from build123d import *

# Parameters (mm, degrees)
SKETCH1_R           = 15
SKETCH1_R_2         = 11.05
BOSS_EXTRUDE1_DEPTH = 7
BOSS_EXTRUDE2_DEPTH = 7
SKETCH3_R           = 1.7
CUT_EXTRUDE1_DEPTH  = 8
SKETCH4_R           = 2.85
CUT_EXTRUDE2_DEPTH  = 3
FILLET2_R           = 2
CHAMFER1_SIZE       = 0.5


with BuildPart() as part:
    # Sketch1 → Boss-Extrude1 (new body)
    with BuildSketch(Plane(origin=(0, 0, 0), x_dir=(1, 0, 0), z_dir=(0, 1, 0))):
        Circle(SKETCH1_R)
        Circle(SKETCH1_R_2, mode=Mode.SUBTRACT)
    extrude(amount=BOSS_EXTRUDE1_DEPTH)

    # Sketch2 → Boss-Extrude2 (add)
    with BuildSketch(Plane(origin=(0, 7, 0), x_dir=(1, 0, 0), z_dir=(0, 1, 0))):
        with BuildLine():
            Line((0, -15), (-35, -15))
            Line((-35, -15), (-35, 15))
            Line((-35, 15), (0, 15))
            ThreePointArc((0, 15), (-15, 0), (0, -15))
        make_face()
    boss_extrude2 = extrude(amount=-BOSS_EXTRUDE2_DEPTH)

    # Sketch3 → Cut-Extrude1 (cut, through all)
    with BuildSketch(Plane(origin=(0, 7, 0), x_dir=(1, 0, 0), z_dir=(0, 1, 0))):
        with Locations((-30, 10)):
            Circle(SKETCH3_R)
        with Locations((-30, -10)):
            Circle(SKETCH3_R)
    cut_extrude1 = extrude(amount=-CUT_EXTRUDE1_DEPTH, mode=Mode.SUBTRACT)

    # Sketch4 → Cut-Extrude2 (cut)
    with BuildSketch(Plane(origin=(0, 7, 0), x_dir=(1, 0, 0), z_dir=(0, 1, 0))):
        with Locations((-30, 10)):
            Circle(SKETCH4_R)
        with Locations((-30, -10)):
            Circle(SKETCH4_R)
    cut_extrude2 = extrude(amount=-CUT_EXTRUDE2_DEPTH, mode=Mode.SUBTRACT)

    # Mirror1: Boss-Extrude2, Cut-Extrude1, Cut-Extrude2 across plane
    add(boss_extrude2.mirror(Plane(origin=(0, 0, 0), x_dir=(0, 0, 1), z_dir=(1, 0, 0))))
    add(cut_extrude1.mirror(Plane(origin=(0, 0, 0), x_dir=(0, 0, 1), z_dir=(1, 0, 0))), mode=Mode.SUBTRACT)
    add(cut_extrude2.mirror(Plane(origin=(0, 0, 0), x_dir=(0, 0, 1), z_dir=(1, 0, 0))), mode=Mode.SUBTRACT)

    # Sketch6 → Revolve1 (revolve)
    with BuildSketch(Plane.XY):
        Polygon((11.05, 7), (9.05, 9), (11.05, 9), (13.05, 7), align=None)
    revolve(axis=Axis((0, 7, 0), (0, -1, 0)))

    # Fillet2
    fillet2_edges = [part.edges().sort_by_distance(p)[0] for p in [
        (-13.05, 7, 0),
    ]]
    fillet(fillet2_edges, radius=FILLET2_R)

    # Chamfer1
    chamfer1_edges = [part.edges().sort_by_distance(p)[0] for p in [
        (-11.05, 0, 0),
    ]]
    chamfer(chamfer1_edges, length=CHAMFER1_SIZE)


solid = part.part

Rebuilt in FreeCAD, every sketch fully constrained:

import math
import FreeCAD as App
import Part
import Sketcher

V = App.Vector
Q = App.Units.Quantity


def edges_at(feature, points):
    """Names of the edges that pass closest to the given points."""
    edges = feature.Shape.Edges
    near = lambda p: min(range(len(edges)), key=lambda i: edges[i].distToShape(Part.Vertex(*p))[0])
    return sorted({f"Edge{near(p) + 1}" for p in points})


def add_polygon(sketch, points):
    """Adds a closed chain of lines whose ends are joined by coincident constraints."""
    first, n = sketch.GeometryCount, len(points)
    for a, b in zip(points, points[1:] + points[:1]):
        sketch.addGeometry(Part.LineSegment(App.Vector(*a, 0), App.Vector(*b, 0)), False)
    for i in range(n):
        sketch.addConstraint(Sketcher.Constraint("Coincident", first + i, 2, first + (i + 1) % n, 1))

doc = App.newDocument("Part")
body = doc.addObject("PartDesign::Body", "Body")

# Sketch on XZ plane
sketch1 = body.newObject("Sketcher::SketchObject", "Sketch")
sketch1.AttachmentSupport = (doc.getObject("XZ_Plane"), [""])
sketch1.MapMode = "FlatFace"
sketch1.addGeometry([
    Part.Circle(V(0, 0, 0), V(0, 0, 1), 15),
    Part.Circle(V(0, 0, 0), V(0, 0, 1), 11),
], False)
sketch1.addConstraint([
    Sketcher.Constraint("Coincident", 0, 3, -1, 1),
    Sketcher.Constraint("Coincident", 1, 3, -1, 1),
    Sketcher.Constraint("Diameter", 0, 30.0),
    Sketcher.Constraint("Diameter", 1, 22.1),
])
pad1 = body.newObject("PartDesign::Pad", "Pad")
pad1.Profile = sketch1
pad1.Length = 7
pad1.Reversed = True

# Sketch on XZ plane
sketch2 = body.newObject("Sketcher::SketchObject", "Sketch001")
sketch2.AttachmentSupport = (doc.getObject("XZ_Plane"), [""])
sketch2.MapMode = "FlatFace"
sketch2.AttachmentOffset = App.Placement(V(0, 0, -7), App.Rotation())
sketch2.addGeometry([
    Part.LineSegment(V(-35, 15, 0), V(0, 15, 0)),
    Part.ArcOfCircle(Part.Circle(V(0, 0, 0), V(0, 0, 1), 15), math.radians(90), math.radians(270)),
    Part.LineSegment(V(0, -15, 0), V(-35, -15, 0)),
    Part.LineSegment(V(-35, -15, 0), V(-35, 15, 0)),
], False)
sketch2.addConstraint([
    Sketcher.Constraint("Tangent", 0, 2, 1, 1),
    Sketcher.Constraint("Tangent", 1, 2, 2, 1),
    Sketcher.Constraint("Coincident", 2, 2, 3, 1),
    Sketcher.Constraint("Coincident", 3, 2, 0, 1),
    Sketcher.Constraint("Horizontal", 0),
    Sketcher.Constraint("Horizontal", 2),
    Sketcher.Constraint("Vertical", 3),
    Sketcher.Constraint("Coincident", 1, 3, -1, 1),
    Sketcher.Constraint("Radius", 1, 15.0),
    Sketcher.Constraint("DistanceX", 0, 1, 0, 2, 35.0),
])
pad2 = body.newObject("PartDesign::Pad", "Pad001")
pad2.Profile = sketch2
pad2.Length = 7

# Sketch on XZ plane
sketch3 = body.newObject("Sketcher::SketchObject", "Sketch002")
sketch3.AttachmentSupport = (doc.getObject("XZ_Plane"), [""])
sketch3.MapMode = "FlatFace"
sketch3.AttachmentOffset = App.Placement(V(0, 0, -7), App.Rotation())
sketch3.addGeometry([
    Part.Circle(V(-30, -10, 0), V(0, 0, 1), 1.7),
    Part.Circle(V(-30, 10, 0), V(0, 0, 1), 1.7),
], False)
sketch3.addConstraint([
    Sketcher.Constraint("Equal", 0, 1),
    Sketcher.Constraint("Symmetric", 0, 3, 1, 3, -1),
    Sketcher.Constraint("Diameter", 0, 3.4),
    Sketcher.Constraint("DistanceX", 0, 3, -1, 1, 30.0),
    Sketcher.Constraint("DistanceY", 0, 3, -1, 1, 10.0),
])
pocket1 = body.newObject("PartDesign::Pocket", "Pocket")
pocket1.Profile = sketch3
pocket1.Type = "ThroughAll"
pocket1.Reversed = True

# Sketch on XZ plane
sketch4 = body.newObject("Sketcher::SketchObject", "Sketch003")
sketch4.AttachmentSupport = (doc.getObject("XZ_Plane"), [""])
sketch4.MapMode = "FlatFace"
sketch4.AttachmentOffset = App.Placement(V(0, 0, -7), App.Rotation())
sketch4.addGeometry([
    Part.Circle(V(-30, -10, 0), V(0, 0, 1), 2.9),
    Part.Circle(V(-30, 10, 0), V(0, 0, 1), 2.9),
], False)
sketch4.addConstraint([
    Sketcher.Constraint("Equal", 0, 1),
    Sketcher.Constraint("Symmetric", 0, 3, 1, 3, -1),
    Sketcher.Constraint("Diameter", 0, 5.7),
    Sketcher.Constraint("DistanceX", 0, 3, -1, 1, 30.0),
    Sketcher.Constraint("DistanceY", 0, 3, -1, 1, 10.0),
])
pocket2 = body.newObject("PartDesign::Pocket", "Pocket001")
pocket2.Profile = sketch4
pocket2.Length = 3
pocket2.Reversed = True
doc.recompute()

mirrored = body.newObject("PartDesign::Mirrored", "Mirrored")
mirrored.Originals = [pad2, pocket1, pocket2]
mirrored.MirrorPlane = (doc.getObject("YZ_Plane"), [""])
body.Tip = mirrored

# Sketch on XY plane
sketch5 = body.newObject("Sketcher::SketchObject", "Sketch004")
sketch5.AttachmentSupport = (doc.getObject("XY_Plane"), [""])
sketch5.MapMode = "FlatFace"
add_polygon(sketch5, [(9.1, 9), (11.1, 7), (13.1, 7), (11.1, 9)])  # lines 0-3
sketch5.addConstraint([
    Sketcher.Constraint("Horizontal", 1),
    Sketcher.Constraint("Horizontal", 3),
    Sketcher.Constraint("Parallel", 0, 2),
    Sketcher.Constraint("Vertical", 0, 2, 2, 2),
    Sketcher.Constraint("DistanceX", 1, 1, 1, 2, 2.0),
    Sketcher.Constraint("Angle", 0, Q("-45 deg")),
    Sketcher.Constraint("DistanceY", -1, 1, 0, 2, 7.0),
    Sketcher.Constraint("DistanceX", -1, 1, 0, 2, 11.05),
])
revolution = body.newObject("PartDesign::Revolution", "Revolution")
revolution.Profile = sketch5
revolution.ReferenceAxis = (sketch5, ["V_Axis"])
revolution.Angle = 360
doc.recompute()

fillet = body.newObject("PartDesign::Fillet", "Fillet")
fillet.Base = (revolution, edges_at(revolution, [(-13.05, 7, 0)]))
fillet.Radius = 2
doc.recompute()

chamfer = body.newObject("PartDesign::Chamfer", "Chamfer")
chamfer.Base = (fillet, edges_at(fillet, [(-11.05, 0, 0)]))
chamfer.Size = 0.5

doc.recompute()
